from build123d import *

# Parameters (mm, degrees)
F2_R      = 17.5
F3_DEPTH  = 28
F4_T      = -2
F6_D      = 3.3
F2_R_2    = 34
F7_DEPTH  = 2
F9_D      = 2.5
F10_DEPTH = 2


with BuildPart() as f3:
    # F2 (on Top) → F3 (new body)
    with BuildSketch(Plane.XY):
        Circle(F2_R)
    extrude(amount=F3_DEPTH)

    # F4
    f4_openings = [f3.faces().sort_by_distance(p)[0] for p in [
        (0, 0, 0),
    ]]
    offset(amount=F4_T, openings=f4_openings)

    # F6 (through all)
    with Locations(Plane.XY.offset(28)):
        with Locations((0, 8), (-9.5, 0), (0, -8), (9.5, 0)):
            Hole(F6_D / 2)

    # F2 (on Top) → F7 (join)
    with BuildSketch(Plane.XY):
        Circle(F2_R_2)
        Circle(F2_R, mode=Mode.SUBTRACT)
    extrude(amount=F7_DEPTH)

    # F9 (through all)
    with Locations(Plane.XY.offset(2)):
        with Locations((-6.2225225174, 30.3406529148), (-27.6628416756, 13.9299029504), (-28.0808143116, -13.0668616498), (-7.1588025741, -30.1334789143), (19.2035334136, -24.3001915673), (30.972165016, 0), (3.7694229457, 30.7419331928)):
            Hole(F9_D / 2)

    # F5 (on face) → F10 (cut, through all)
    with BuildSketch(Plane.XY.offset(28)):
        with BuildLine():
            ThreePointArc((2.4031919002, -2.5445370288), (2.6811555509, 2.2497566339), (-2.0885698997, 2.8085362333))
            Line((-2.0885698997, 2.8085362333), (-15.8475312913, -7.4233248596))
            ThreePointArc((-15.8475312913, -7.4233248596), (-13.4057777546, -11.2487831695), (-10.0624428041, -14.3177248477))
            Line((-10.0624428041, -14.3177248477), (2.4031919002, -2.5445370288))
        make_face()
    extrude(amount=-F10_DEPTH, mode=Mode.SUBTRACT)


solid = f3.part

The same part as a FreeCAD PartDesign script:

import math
import FreeCAD as App
import Part
import Sketcher

V = App.Vector


def faces_at(feature, points):
    """Names of the faces that lie closest to the given points."""
    faces = feature.Shape.Faces
    near = lambda p: min(range(len(faces)), key=lambda i: faces[i].distToShape(Part.Vertex(*p))[0])
    return sorted({f"Face{near(p) + 1}" for p in points})

doc = App.newDocument("Part")
body = doc.addObject("PartDesign::Body", "Body")

sketch1 = body.newObject("Sketcher::SketchObject", "Sketch")
sketch1.AttachmentSupport = (doc.getObject("XY_Plane"), [""])
sketch1.MapMode = "FlatFace"
sketch1.addGeometry(Part.Circle(V(0, 0, 0), V(0, 0, 1), 18), False)
sketch1.addConstraint([
    Sketcher.Constraint("Coincident", 0, 3, -1, 1),
    Sketcher.Constraint("Diameter", 0, 35.0),
])
pad1 = body.newObject("PartDesign::Pad", "Pad")
pad1.Profile = sketch1
pad1.Length = 28
doc.recompute()

thickness = body.newObject("PartDesign::Thickness", "Thickness")
thickness.Base = (pad1, faces_at(pad1, [(0, 0, 0)]))
thickness.Value = 2
thickness.Reversed = True
thickness.Join = "Arc"

sketch2 = body.newObject("Sketcher::SketchObject", "Sketch001")
sketch2.AttachmentSupport = (doc.getObject("XY_Plane"), [""])
sketch2.MapMode = "FlatFace"
sketch2.AttachmentOffset = App.Placement(V(0, 0, 28), App.Rotation())
sketch2.addGeometry([
    Part.Circle(V(0, 8, 0), V(0, 0, 1), 1.6),
    Part.Circle(V(-9.5, 0, 0), V(0, 0, 1), 1.6),
    Part.Circle(V(0, -8, 0), V(0, 0, 1), 1.6),
    Part.Circle(V(9.5, 0, 0), V(0, 0, 1), 1.6),
], False)
sketch2.addConstraint([
    Sketcher.Constraint("Equal", 0, 1),
    Sketcher.Constraint("Equal", 1, 2),
    Sketcher.Constraint("Equal", 2, 3),
    Sketcher.Constraint("Symmetric", 0, 3, 2, 3, -1, 1),
    Sketcher.Constraint("Symmetric", 1, 3, 3, 3, -1, 1),
    Sketcher.Constraint("PointOnObject", 0, 3, -2),
    Sketcher.Constraint("PointOnObject", 1, 3, -1),
    Sketcher.Constraint("Diameter", 0, 3.3),
    Sketcher.Constraint("DistanceY", -1, 1, 0, 3, 8.0),
    Sketcher.Constraint("DistanceX", 1, 3, 3, 3, 19.0),
])
doc.recompute()
hole = body.newObject("PartDesign::Hole", "Hole")
hole.Profile = sketch2
hole.ThreadType = "None"
hole.Diameter = 3.3
hole.DepthType = "ThroughAll"

sketch3 = body.newObject("Sketcher::SketchObject", "Sketch002")
sketch3.AttachmentSupport = (doc.getObject("XY_Plane"), [""])
sketch3.MapMode = "FlatFace"
sketch3.addGeometry([
    Part.Circle(V(0, 0, 0), V(0, 0, 1), 34),
    Part.Circle(V(0, 0, 0), V(0, 0, 1), 18),
], False)
sketch3.addConstraint([
    Sketcher.Constraint("Coincident", 0, 3, -1, 1),
    Sketcher.Constraint("Coincident", 1, 3, -1, 1),
    Sketcher.Constraint("Diameter", 0, 68.0),
    Sketcher.Constraint("Diameter", 1, 35.0),
])
pad2 = body.newObject("PartDesign::Pad", "Pad001")
pad2.Profile = sketch3
pad2.Length = 2

sketch4 = body.newObject("Sketcher::SketchObject", "Sketch003")
sketch4.AttachmentSupport = (doc.getObject("XY_Plane"), [""])
sketch4.MapMode = "FlatFace"
sketch4.AttachmentOffset = App.Placement(V(0, 0, 2), App.Rotation())
sketch4.addGeometry([
    Part.Circle(V(-6.2, 30.3, 0), V(0, 0, 1), 1.2),
    Part.Circle(V(-27.7, 13.9, 0), V(0, 0, 1), 1.2),
    Part.Circle(V(-28.1, -13.1, 0), V(0, 0, 1), 1.2),
    Part.Circle(V(-7.2, -30.1, 0), V(0, 0, 1), 1.2),
    Part.Circle(V(19.2, -24.3, 0), V(0, 0, 1), 1.2),
    Part.Circle(V(31, 0, 0), V(0, 0, 1), 1.2),
    Part.Circle(V(3.8, 30.7, 0), V(0, 0, 1), 1.2),
], False)
sketch4.addConstraint([
    Sketcher.Constraint("Equal", 0, 1),
    Sketcher.Constraint("Equal", 1, 2),
    Sketcher.Constraint("Equal", 2, 3),
    Sketcher.Constraint("Equal", 3, 4),
    Sketcher.Constraint("Equal", 4, 5),
    Sketcher.Constraint("Equal", 5, 6),
    Sketcher.Constraint("PointOnObject", 5, 3, -1),
    Sketcher.Constraint("Diameter", 0, 2.5),
    Sketcher.Constraint("DistanceX", 1, 3, -1, 1, 27.662842),
    Sketcher.Constraint("DistanceY", 2, 3, -1, 1, 13.066862),
    Sketcher.Constraint("DistanceY", 3, 3, -1, 1, 30.133479),
    Sketcher.Constraint("DistanceY", 4, 3, -1, 1, 24.300192),
    Sketcher.Constraint("DistanceX", 1, 3, 0, 3, 21.440319),
    Sketcher.Constraint("DistanceY", 1, 3, 0, 3, 16.41075),
    Sketcher.Constraint("DistanceX", 2, 3, 0, 3, 21.858292),
    Sketcher.Constraint("DistanceX", 2, 3, 3, 3, 20.922012),
    Sketcher.Constraint("DistanceY", 3, 3, 1, 3, 44.063382),
    Sketcher.Constraint("DistanceX", 4, 3, 5, 3, 11.768632),
    Sketcher.Constraint("DistanceX", 2, 3, 5, 3, 59.052979),
    Sketcher.Constraint("DistanceY", 0, 3, 6, 3, 0.40128),
    Sketcher.Constraint("DistanceX", 6, 3, 4, 3, 15.43411),
])
doc.recompute()
hole2 = body.newObject("PartDesign::Hole", "Hole001")
hole2.Profile = sketch4
hole2.ThreadType = "None"
hole2.Diameter = 2.5
hole2.DepthType = "ThroughAll"

sketch5 = body.newObject("Sketcher::SketchObject", "Sketch004")
sketch5.AttachmentSupport = (doc.getObject("XY_Plane"), [""])
sketch5.MapMode = "FlatFace"
sketch5.AttachmentOffset = App.Placement(V(0, 0, 28), App.Rotation())
sketch5.addGeometry([
    Part.ArcOfCircle(Part.Circle(V(0, 0, 0), V(0, 0, 1), 3.5), math.radians(-47), math.radians(127)),
    Part.LineSegment(V(-2.1, 2.8, 0), V(-15.8, -7.4, 0)),
    Part.ArcOfCircle(Part.Circle(V(0, 0, 0), V(0, 0, 1), 17.5), math.radians(-155), math.radians(-125)),
    Part.LineSegment(V(-10.1, -14.3, 0), V(2.4, -2.5, 0)),
], False)
sketch5.addConstraint([
    Sketcher.Constraint("Tangent", 0, 2, 1, 1),
    Sketcher.Constraint("Coincident", 1, 2, 2, 1),
    Sketcher.Constraint("Coincident", 2, 2, 3, 1),
    Sketcher.Constraint("Tangent", 3, 2, 0, 1),
    Sketcher.Constraint("Coincident", 0, 3, -1, 1),
    Sketcher.Constraint("Coincident", 2, 3, -1, 1),
    Sketcher.Constraint("Radius", 0, 3.5),
    Sketcher.Constraint("Radius", 2, 17.5),
    Sketcher.Constraint("DistanceY", 2, 2, 1, 2, 6.8944),
    Sketcher.Constraint("DistanceX", 0, 2, -1, 1, 2.08857),
])
pocket1 = body.newObject("PartDesign::Pocket", "Pocket")
pocket1.Profile = sketch5
pocket1.Length = 2

doc.recompute()
